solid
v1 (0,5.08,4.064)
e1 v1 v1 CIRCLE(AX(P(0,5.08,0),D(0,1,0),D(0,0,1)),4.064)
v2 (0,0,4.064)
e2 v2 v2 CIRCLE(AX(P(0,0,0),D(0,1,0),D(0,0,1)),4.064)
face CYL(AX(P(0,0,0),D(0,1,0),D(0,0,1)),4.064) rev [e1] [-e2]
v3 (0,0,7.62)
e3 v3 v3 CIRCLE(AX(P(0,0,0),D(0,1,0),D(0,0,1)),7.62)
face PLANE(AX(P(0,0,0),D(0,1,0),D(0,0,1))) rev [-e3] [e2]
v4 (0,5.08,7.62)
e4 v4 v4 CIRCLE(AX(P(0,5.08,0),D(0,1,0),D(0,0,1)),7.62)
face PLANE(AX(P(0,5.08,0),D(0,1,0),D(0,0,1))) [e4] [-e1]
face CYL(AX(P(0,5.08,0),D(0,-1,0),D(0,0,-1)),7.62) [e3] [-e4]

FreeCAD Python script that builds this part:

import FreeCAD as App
import Part
import Sketcher
from FreeCAD import Vector
Q = App.Units.Quantity

doc = App.newDocument("Part")
body = doc.addObject("PartDesign::Body", "Body")

# Sketch on XZ plane
sketch1 = body.newObject("Sketcher::SketchObject", "Sketch")
sketch1.AttachmentSupport = (doc.getObject("XZ_Plane"), [""])
sketch1.MapMode = "FlatFace"
sketch1.addGeometry(Part.Circle(Vector(0, 0, 0), Vector(0, 0, 1), 7.62), False)
sketch1.addConstraint([
    Sketcher.Constraint("Coincident", 0, 3, -1, 1),
    Sketcher.Constraint("Diameter", 0, Q("0.6 in")),
])
pad1 = body.newObject("PartDesign::Pad", "Pad")
pad1.Profile = sketch1
pad1.Length = Q("0.2 in")
pad1.Reversed = True

# Sketch on XZ plane
sketch2 = body.newObject("Sketcher::SketchObject", "Sketch001")
sketch2.AttachmentSupport = (doc.getObject("XZ_Plane"), [""])
sketch2.MapMode = "FlatFace"
sketch2.AttachmentOffset = App.Placement(Vector(0, 0, -0.2 * 25.4), App.Rotation())
sketch2.addGeometry(Part.Circle(Vector(0, 0, 0), Vector(0, 0, 1), 4.064), False)
sketch2.addConstraint([
    Sketcher.Constraint("Coincident", 0, 3, -1, 1),
    Sketcher.Constraint("Diameter", 0, Q("0.32 in")),
])
pocket1 = body.newObject("PartDesign::Pocket", "Pocket")
pocket1.Profile = sketch2
pocket1.Length = Q("0.2 in")
pocket1.Reversed = True

doc.recompute()
